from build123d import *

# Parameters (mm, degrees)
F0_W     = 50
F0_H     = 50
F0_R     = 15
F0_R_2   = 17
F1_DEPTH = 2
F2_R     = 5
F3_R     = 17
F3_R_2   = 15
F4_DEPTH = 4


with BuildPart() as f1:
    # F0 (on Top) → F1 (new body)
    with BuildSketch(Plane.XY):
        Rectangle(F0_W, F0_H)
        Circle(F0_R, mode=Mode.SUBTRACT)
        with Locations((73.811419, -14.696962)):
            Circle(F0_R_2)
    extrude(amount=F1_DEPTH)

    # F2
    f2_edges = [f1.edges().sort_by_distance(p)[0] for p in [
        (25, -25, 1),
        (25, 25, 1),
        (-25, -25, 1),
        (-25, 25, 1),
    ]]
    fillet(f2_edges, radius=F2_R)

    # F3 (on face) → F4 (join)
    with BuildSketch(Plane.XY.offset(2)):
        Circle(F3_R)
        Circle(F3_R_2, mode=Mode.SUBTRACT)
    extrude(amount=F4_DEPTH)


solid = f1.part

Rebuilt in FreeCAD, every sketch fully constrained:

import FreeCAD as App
import Part
import Sketcher

V = App.Vector
Q = App.Units.Quantity


def edges_at(feature, points):
    """Names of the edges that pass closest to the given points."""
    edges = feature.Shape.Edges
    near = lambda p: min(range(len(edges)), key=lambda i: edges[i].distToShape(Part.Vertex(*p))[0])
    return sorted({f"Edge{near(p) + 1}" for p in points})


def add_polygon(sketch, points):
    """Adds a closed chain of lines whose ends are joined by coincident constraints."""
    first, n = sketch.GeometryCount, len(points)
    for a, b in zip(points, points[1:] + points[:1]):
        sketch.addGeometry(Part.LineSegment(App.Vector(*a, 0), App.Vector(*b, 0)), False)
    for i in range(n):
        sketch.addConstraint(Sketcher.Constraint("Coincident", first + i, 2, first + (i + 1) % n, 1))

doc = App.newDocument("Part")
params = doc.addObject("Spreadsheet::Sheet", "Params")
for row, (alias, value) in enumerate([
    ("sketch1_diameter", "30 mm"),
    ("sketch1_diameter2", "34 mm"),
    ("sketch1_width", "50 mm"),
    ("pad1_length", "2 mm"),
    ("fillet_radius", "5 mm"),
    ("sketch2_diameter", "34 mm"),
    ("sketch2_diameter2", "30 mm"),
    ("pad2_length", "4 mm"),
], start=1):
    params.set(f"A{row}", alias)
    params.set(f"B{row}", "=" + value)
    params.setAlias(f"B{row}", alias)

body = doc.addObject("PartDesign::Body", "Body")
body.AllowCompound = True

# Sketch on XY plane
sketch1 = doc.addObject("Sketcher::SketchObject", "Sketch")
body.addObject(sketch1)
sketch1.AttachmentSupport = (doc.XY_Plane, [""])
sketch1.MapMode = "FlatFace"
add_polygon(sketch1, [(-25, 25), (-25, -25), (25, -25), (25, 25)])  # lines 0-3
sketch1.addGeometry(Part.Circle(V(0, 0, 0), V(0, 0, 1), 15), False)  # 4
sketch1.addGeometry(Part.Circle(V(74, -15, 0), V(0, 0, 1), 17), False)  # 5
sketch1.addConstraint([
    Sketcher.Constraint("Vertical", 0),
    Sketcher.Constraint("Horizontal", 1),
    Sketcher.Constraint("Vertical", 2),
    Sketcher.Constraint("Horizontal", 3),
    Sketcher.Constraint("Coincident", 4, 3, -1, 1),
    Sketcher.Constraint("Symmetric", 0, 2, 2, 2, -1, 1),
    Sketcher.Constraint("Equal", 3, 0),
    Sketcher.Constraint("Diameter", 4, Q("30 mm")),
    Sketcher.Constraint("Diameter", 5, Q("34 mm")),
    Sketcher.Constraint("DistanceX", 1, 1, 1, 2, Q("50 mm")),
    Sketcher.Constraint("DistanceX", -1, 1, 5, 3, Q("73.811419 mm")),
    Sketcher.Constraint("DistanceY", 5, 3, -1, 1, Q("14.696962 mm")),
])
sketch1.setExpression("Constraints[11]", "Params.sketch1_diameter")
sketch1.setExpression("Constraints[12]", "Params.sketch1_diameter2")
sketch1.setExpression("Constraints[13]", "Params.sketch1_width")
pad1 = doc.addObject("PartDesign::Pad", "Pad")
body.addObject(pad1)
pad1.Profile = sketch1
pad1.setExpression("Length", "Params.pad1_length")
doc.recompute()

fillet = doc.addObject("PartDesign::Fillet", "Fillet")
body.addObject(fillet)
fillet.Base = (pad1, edges_at(pad1, [
    (25, -25, 1),
    (25, 25, 1),
    (-25, -25, 1),
    (-25, 25, 1),
]))
fillet.setExpression("Radius", "Params.fillet_radius")

# Sketch on XY plane
sketch2 = doc.addObject("Sketcher::SketchObject", "Sketch001")
body.addObject(sketch2)
sketch2.AttachmentSupport = (doc.XY_Plane, [""])
sketch2.MapMode = "FlatFace"
sketch2.AttachmentOffset = App.Placement(V(0, 0, 2), App.Rotation())
sketch2.addGeometry([
    Part.Circle(V(0, 0, 0), V(0, 0, 1), 17),
    Part.Circle(V(0, 0, 0), V(0, 0, 1), 15),
], False)
sketch2.addConstraint([
    Sketcher.Constraint("Coincident", 0, 3, -1, 1),
    Sketcher.Constraint("Coincident", 1, 3, -1, 1),
    Sketcher.Constraint("Diameter", 0, Q("34 mm")),
    Sketcher.Constraint("Diameter", 1, Q("30 mm")),
])
sketch2.setExpression("Constraints[2]", "Params.sketch2_diameter")
sketch2.setExpression("Constraints[3]", "Params.sketch2_diameter2")
pad2 = doc.addObject("PartDesign::Pad", "Pad001")
body.addObject(pad2)
pad2.Profile = sketch2
pad2.setExpression("Length", "Params.pad2_length")

doc.recompute()
